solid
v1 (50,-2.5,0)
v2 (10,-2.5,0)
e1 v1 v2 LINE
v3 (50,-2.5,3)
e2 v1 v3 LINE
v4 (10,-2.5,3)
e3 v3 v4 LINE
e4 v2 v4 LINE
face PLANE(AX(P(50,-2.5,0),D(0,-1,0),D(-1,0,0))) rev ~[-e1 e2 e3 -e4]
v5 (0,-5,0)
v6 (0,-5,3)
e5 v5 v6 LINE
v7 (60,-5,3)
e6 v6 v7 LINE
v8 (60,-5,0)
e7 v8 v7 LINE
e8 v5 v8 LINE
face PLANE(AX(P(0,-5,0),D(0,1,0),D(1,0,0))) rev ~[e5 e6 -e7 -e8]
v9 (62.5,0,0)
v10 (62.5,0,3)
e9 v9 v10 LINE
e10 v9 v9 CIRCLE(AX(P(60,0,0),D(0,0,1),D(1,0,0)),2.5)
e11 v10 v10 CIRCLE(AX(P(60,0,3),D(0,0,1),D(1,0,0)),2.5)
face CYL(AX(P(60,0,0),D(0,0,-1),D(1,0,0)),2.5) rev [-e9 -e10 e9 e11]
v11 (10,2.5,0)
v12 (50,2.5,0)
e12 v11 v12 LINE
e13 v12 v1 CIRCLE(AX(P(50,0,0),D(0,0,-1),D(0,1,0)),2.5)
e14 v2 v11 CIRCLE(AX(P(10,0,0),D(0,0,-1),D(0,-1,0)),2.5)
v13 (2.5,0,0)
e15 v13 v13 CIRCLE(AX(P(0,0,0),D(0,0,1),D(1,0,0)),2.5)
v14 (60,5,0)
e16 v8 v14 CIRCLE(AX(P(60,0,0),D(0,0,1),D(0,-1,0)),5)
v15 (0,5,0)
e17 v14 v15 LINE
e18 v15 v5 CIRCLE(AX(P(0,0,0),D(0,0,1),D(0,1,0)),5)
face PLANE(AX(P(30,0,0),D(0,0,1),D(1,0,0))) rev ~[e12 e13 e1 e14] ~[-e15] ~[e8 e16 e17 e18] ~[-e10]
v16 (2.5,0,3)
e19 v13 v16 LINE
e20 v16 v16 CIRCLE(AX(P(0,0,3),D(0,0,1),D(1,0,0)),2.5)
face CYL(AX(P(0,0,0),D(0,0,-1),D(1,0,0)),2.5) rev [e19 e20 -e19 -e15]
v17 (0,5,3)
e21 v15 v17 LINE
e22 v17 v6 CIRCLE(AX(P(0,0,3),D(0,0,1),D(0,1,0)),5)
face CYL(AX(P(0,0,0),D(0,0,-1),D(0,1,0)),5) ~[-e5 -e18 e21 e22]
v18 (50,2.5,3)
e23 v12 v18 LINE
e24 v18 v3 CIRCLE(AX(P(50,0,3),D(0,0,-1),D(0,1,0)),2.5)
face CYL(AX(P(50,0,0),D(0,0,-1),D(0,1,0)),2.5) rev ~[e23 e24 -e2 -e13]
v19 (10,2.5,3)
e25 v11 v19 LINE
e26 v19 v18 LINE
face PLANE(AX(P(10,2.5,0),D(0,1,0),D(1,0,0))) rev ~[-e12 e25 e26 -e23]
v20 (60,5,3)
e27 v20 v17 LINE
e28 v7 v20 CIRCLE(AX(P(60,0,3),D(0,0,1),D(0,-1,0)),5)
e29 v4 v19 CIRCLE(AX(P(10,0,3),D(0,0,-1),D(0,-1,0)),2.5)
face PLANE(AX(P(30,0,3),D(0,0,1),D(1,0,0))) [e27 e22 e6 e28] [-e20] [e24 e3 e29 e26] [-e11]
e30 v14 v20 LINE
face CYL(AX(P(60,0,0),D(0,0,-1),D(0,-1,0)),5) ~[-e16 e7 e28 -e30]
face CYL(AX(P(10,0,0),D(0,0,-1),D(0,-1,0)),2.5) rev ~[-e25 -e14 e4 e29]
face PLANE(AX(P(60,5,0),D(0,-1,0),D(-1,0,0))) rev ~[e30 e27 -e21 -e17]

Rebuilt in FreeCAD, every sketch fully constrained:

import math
import FreeCAD as App
import Part
import Sketcher

V = App.Vector
Q = App.Units.Quantity

doc = App.newDocument("Part")
body = doc.addObject("PartDesign::Body", "Body")

sketch1 = body.newObject("Sketcher::SketchObject", "Sketch")
sketch1.AttachmentSupport = (doc.getObject("XY_Plane"), [""])
sketch1.MapMode = "FlatFace"
sketch1.addGeometry([
    Part.LineSegment(V(60, 5, 0), V(0, 5, 0)),
    Part.ArcOfCircle(Part.Circle(V(0, 0, 0), V(0, 0, 1), 5), math.radians(90), math.radians(270)),
    Part.LineSegment(V(0, -5, 0), V(60, -5, 0)),
    Part.ArcOfCircle(Part.Circle(V(60, 0, 0), V(0, 0, 1), 5), math.radians(-90), math.radians(90)),
    Part.Circle(V(0, 0, 0), V(0, 0, 1), 2.5),
    Part.LineSegment(V(50, -2.5, 0), V(10, -2.5, 0)),
    Part.ArcOfCircle(Part.Circle(V(10, 0, 0), V(0, 0, 1), 2.5), math.radians(90), math.radians(270)),
    Part.LineSegment(V(10, 2.5, 0), V(50, 2.5, 0)),
    Part.ArcOfCircle(Part.Circle(V(50, 0, 0), V(0, 0, 1), 2.5), math.radians(-90), math.radians(90)),
    Part.Circle(V(60, 0, 0), V(0, 0, 1), 2.5),
], False)
sketch1.addConstraint([
    Sketcher.Constraint("Tangent", 0, 2, 1, 1),
    Sketcher.Constraint("Tangent", 1, 2, 2, 1),
    Sketcher.Constraint("Tangent", 2, 2, 3, 1),
    Sketcher.Constraint("Tangent", 3, 2, 0, 1),
    Sketcher.Constraint("Tangent", 5, 2, 6, 2),
    Sketcher.Constraint("Tangent", 6, 1, 7, 1),
    Sketcher.Constraint("Tangent", 7, 2, 8, 2),
    Sketcher.Constraint("Tangent", 8, 1, 5, 1),
    Sketcher.Constraint("Horizontal", 0),
    Sketcher.Constraint("Horizontal", 2),
    Sketcher.Constraint("Horizontal", 5),
    Sketcher.Constraint("Horizontal", 7),
    Sketcher.Constraint("Coincident", 1, 3, -1, 1),
    Sketcher.Constraint("Coincident", 4, 3, -1, 1),
    Sketcher.Constraint("Coincident", 9, 3, 3, 3),
    Sketcher.Constraint("Equal", 4, 6),
    Sketcher.Constraint("Equal", 8, 9),
    Sketcher.Constraint("PointOnObject", 6, 3, -1),
    Sketcher.Constraint("Diameter", 4, Q("5 mm")),
    Sketcher.Constraint("Radius", 1, Q("5 mm")),
    Sketcher.Constraint("DistanceX", 0, 2, 0, 1, Q("60 mm")),
    Sketcher.Constraint("DistanceX", 5, 2, 5, 1, Q("40 mm")),
    Sketcher.Constraint("DistanceX", -1, 1, 6, 3, Q("10 mm")),
])
pad1 = body.newObject("PartDesign::Pad", "Pad")
pad1.Profile = sketch1
pad1.Length = 3

doc.recompute()
